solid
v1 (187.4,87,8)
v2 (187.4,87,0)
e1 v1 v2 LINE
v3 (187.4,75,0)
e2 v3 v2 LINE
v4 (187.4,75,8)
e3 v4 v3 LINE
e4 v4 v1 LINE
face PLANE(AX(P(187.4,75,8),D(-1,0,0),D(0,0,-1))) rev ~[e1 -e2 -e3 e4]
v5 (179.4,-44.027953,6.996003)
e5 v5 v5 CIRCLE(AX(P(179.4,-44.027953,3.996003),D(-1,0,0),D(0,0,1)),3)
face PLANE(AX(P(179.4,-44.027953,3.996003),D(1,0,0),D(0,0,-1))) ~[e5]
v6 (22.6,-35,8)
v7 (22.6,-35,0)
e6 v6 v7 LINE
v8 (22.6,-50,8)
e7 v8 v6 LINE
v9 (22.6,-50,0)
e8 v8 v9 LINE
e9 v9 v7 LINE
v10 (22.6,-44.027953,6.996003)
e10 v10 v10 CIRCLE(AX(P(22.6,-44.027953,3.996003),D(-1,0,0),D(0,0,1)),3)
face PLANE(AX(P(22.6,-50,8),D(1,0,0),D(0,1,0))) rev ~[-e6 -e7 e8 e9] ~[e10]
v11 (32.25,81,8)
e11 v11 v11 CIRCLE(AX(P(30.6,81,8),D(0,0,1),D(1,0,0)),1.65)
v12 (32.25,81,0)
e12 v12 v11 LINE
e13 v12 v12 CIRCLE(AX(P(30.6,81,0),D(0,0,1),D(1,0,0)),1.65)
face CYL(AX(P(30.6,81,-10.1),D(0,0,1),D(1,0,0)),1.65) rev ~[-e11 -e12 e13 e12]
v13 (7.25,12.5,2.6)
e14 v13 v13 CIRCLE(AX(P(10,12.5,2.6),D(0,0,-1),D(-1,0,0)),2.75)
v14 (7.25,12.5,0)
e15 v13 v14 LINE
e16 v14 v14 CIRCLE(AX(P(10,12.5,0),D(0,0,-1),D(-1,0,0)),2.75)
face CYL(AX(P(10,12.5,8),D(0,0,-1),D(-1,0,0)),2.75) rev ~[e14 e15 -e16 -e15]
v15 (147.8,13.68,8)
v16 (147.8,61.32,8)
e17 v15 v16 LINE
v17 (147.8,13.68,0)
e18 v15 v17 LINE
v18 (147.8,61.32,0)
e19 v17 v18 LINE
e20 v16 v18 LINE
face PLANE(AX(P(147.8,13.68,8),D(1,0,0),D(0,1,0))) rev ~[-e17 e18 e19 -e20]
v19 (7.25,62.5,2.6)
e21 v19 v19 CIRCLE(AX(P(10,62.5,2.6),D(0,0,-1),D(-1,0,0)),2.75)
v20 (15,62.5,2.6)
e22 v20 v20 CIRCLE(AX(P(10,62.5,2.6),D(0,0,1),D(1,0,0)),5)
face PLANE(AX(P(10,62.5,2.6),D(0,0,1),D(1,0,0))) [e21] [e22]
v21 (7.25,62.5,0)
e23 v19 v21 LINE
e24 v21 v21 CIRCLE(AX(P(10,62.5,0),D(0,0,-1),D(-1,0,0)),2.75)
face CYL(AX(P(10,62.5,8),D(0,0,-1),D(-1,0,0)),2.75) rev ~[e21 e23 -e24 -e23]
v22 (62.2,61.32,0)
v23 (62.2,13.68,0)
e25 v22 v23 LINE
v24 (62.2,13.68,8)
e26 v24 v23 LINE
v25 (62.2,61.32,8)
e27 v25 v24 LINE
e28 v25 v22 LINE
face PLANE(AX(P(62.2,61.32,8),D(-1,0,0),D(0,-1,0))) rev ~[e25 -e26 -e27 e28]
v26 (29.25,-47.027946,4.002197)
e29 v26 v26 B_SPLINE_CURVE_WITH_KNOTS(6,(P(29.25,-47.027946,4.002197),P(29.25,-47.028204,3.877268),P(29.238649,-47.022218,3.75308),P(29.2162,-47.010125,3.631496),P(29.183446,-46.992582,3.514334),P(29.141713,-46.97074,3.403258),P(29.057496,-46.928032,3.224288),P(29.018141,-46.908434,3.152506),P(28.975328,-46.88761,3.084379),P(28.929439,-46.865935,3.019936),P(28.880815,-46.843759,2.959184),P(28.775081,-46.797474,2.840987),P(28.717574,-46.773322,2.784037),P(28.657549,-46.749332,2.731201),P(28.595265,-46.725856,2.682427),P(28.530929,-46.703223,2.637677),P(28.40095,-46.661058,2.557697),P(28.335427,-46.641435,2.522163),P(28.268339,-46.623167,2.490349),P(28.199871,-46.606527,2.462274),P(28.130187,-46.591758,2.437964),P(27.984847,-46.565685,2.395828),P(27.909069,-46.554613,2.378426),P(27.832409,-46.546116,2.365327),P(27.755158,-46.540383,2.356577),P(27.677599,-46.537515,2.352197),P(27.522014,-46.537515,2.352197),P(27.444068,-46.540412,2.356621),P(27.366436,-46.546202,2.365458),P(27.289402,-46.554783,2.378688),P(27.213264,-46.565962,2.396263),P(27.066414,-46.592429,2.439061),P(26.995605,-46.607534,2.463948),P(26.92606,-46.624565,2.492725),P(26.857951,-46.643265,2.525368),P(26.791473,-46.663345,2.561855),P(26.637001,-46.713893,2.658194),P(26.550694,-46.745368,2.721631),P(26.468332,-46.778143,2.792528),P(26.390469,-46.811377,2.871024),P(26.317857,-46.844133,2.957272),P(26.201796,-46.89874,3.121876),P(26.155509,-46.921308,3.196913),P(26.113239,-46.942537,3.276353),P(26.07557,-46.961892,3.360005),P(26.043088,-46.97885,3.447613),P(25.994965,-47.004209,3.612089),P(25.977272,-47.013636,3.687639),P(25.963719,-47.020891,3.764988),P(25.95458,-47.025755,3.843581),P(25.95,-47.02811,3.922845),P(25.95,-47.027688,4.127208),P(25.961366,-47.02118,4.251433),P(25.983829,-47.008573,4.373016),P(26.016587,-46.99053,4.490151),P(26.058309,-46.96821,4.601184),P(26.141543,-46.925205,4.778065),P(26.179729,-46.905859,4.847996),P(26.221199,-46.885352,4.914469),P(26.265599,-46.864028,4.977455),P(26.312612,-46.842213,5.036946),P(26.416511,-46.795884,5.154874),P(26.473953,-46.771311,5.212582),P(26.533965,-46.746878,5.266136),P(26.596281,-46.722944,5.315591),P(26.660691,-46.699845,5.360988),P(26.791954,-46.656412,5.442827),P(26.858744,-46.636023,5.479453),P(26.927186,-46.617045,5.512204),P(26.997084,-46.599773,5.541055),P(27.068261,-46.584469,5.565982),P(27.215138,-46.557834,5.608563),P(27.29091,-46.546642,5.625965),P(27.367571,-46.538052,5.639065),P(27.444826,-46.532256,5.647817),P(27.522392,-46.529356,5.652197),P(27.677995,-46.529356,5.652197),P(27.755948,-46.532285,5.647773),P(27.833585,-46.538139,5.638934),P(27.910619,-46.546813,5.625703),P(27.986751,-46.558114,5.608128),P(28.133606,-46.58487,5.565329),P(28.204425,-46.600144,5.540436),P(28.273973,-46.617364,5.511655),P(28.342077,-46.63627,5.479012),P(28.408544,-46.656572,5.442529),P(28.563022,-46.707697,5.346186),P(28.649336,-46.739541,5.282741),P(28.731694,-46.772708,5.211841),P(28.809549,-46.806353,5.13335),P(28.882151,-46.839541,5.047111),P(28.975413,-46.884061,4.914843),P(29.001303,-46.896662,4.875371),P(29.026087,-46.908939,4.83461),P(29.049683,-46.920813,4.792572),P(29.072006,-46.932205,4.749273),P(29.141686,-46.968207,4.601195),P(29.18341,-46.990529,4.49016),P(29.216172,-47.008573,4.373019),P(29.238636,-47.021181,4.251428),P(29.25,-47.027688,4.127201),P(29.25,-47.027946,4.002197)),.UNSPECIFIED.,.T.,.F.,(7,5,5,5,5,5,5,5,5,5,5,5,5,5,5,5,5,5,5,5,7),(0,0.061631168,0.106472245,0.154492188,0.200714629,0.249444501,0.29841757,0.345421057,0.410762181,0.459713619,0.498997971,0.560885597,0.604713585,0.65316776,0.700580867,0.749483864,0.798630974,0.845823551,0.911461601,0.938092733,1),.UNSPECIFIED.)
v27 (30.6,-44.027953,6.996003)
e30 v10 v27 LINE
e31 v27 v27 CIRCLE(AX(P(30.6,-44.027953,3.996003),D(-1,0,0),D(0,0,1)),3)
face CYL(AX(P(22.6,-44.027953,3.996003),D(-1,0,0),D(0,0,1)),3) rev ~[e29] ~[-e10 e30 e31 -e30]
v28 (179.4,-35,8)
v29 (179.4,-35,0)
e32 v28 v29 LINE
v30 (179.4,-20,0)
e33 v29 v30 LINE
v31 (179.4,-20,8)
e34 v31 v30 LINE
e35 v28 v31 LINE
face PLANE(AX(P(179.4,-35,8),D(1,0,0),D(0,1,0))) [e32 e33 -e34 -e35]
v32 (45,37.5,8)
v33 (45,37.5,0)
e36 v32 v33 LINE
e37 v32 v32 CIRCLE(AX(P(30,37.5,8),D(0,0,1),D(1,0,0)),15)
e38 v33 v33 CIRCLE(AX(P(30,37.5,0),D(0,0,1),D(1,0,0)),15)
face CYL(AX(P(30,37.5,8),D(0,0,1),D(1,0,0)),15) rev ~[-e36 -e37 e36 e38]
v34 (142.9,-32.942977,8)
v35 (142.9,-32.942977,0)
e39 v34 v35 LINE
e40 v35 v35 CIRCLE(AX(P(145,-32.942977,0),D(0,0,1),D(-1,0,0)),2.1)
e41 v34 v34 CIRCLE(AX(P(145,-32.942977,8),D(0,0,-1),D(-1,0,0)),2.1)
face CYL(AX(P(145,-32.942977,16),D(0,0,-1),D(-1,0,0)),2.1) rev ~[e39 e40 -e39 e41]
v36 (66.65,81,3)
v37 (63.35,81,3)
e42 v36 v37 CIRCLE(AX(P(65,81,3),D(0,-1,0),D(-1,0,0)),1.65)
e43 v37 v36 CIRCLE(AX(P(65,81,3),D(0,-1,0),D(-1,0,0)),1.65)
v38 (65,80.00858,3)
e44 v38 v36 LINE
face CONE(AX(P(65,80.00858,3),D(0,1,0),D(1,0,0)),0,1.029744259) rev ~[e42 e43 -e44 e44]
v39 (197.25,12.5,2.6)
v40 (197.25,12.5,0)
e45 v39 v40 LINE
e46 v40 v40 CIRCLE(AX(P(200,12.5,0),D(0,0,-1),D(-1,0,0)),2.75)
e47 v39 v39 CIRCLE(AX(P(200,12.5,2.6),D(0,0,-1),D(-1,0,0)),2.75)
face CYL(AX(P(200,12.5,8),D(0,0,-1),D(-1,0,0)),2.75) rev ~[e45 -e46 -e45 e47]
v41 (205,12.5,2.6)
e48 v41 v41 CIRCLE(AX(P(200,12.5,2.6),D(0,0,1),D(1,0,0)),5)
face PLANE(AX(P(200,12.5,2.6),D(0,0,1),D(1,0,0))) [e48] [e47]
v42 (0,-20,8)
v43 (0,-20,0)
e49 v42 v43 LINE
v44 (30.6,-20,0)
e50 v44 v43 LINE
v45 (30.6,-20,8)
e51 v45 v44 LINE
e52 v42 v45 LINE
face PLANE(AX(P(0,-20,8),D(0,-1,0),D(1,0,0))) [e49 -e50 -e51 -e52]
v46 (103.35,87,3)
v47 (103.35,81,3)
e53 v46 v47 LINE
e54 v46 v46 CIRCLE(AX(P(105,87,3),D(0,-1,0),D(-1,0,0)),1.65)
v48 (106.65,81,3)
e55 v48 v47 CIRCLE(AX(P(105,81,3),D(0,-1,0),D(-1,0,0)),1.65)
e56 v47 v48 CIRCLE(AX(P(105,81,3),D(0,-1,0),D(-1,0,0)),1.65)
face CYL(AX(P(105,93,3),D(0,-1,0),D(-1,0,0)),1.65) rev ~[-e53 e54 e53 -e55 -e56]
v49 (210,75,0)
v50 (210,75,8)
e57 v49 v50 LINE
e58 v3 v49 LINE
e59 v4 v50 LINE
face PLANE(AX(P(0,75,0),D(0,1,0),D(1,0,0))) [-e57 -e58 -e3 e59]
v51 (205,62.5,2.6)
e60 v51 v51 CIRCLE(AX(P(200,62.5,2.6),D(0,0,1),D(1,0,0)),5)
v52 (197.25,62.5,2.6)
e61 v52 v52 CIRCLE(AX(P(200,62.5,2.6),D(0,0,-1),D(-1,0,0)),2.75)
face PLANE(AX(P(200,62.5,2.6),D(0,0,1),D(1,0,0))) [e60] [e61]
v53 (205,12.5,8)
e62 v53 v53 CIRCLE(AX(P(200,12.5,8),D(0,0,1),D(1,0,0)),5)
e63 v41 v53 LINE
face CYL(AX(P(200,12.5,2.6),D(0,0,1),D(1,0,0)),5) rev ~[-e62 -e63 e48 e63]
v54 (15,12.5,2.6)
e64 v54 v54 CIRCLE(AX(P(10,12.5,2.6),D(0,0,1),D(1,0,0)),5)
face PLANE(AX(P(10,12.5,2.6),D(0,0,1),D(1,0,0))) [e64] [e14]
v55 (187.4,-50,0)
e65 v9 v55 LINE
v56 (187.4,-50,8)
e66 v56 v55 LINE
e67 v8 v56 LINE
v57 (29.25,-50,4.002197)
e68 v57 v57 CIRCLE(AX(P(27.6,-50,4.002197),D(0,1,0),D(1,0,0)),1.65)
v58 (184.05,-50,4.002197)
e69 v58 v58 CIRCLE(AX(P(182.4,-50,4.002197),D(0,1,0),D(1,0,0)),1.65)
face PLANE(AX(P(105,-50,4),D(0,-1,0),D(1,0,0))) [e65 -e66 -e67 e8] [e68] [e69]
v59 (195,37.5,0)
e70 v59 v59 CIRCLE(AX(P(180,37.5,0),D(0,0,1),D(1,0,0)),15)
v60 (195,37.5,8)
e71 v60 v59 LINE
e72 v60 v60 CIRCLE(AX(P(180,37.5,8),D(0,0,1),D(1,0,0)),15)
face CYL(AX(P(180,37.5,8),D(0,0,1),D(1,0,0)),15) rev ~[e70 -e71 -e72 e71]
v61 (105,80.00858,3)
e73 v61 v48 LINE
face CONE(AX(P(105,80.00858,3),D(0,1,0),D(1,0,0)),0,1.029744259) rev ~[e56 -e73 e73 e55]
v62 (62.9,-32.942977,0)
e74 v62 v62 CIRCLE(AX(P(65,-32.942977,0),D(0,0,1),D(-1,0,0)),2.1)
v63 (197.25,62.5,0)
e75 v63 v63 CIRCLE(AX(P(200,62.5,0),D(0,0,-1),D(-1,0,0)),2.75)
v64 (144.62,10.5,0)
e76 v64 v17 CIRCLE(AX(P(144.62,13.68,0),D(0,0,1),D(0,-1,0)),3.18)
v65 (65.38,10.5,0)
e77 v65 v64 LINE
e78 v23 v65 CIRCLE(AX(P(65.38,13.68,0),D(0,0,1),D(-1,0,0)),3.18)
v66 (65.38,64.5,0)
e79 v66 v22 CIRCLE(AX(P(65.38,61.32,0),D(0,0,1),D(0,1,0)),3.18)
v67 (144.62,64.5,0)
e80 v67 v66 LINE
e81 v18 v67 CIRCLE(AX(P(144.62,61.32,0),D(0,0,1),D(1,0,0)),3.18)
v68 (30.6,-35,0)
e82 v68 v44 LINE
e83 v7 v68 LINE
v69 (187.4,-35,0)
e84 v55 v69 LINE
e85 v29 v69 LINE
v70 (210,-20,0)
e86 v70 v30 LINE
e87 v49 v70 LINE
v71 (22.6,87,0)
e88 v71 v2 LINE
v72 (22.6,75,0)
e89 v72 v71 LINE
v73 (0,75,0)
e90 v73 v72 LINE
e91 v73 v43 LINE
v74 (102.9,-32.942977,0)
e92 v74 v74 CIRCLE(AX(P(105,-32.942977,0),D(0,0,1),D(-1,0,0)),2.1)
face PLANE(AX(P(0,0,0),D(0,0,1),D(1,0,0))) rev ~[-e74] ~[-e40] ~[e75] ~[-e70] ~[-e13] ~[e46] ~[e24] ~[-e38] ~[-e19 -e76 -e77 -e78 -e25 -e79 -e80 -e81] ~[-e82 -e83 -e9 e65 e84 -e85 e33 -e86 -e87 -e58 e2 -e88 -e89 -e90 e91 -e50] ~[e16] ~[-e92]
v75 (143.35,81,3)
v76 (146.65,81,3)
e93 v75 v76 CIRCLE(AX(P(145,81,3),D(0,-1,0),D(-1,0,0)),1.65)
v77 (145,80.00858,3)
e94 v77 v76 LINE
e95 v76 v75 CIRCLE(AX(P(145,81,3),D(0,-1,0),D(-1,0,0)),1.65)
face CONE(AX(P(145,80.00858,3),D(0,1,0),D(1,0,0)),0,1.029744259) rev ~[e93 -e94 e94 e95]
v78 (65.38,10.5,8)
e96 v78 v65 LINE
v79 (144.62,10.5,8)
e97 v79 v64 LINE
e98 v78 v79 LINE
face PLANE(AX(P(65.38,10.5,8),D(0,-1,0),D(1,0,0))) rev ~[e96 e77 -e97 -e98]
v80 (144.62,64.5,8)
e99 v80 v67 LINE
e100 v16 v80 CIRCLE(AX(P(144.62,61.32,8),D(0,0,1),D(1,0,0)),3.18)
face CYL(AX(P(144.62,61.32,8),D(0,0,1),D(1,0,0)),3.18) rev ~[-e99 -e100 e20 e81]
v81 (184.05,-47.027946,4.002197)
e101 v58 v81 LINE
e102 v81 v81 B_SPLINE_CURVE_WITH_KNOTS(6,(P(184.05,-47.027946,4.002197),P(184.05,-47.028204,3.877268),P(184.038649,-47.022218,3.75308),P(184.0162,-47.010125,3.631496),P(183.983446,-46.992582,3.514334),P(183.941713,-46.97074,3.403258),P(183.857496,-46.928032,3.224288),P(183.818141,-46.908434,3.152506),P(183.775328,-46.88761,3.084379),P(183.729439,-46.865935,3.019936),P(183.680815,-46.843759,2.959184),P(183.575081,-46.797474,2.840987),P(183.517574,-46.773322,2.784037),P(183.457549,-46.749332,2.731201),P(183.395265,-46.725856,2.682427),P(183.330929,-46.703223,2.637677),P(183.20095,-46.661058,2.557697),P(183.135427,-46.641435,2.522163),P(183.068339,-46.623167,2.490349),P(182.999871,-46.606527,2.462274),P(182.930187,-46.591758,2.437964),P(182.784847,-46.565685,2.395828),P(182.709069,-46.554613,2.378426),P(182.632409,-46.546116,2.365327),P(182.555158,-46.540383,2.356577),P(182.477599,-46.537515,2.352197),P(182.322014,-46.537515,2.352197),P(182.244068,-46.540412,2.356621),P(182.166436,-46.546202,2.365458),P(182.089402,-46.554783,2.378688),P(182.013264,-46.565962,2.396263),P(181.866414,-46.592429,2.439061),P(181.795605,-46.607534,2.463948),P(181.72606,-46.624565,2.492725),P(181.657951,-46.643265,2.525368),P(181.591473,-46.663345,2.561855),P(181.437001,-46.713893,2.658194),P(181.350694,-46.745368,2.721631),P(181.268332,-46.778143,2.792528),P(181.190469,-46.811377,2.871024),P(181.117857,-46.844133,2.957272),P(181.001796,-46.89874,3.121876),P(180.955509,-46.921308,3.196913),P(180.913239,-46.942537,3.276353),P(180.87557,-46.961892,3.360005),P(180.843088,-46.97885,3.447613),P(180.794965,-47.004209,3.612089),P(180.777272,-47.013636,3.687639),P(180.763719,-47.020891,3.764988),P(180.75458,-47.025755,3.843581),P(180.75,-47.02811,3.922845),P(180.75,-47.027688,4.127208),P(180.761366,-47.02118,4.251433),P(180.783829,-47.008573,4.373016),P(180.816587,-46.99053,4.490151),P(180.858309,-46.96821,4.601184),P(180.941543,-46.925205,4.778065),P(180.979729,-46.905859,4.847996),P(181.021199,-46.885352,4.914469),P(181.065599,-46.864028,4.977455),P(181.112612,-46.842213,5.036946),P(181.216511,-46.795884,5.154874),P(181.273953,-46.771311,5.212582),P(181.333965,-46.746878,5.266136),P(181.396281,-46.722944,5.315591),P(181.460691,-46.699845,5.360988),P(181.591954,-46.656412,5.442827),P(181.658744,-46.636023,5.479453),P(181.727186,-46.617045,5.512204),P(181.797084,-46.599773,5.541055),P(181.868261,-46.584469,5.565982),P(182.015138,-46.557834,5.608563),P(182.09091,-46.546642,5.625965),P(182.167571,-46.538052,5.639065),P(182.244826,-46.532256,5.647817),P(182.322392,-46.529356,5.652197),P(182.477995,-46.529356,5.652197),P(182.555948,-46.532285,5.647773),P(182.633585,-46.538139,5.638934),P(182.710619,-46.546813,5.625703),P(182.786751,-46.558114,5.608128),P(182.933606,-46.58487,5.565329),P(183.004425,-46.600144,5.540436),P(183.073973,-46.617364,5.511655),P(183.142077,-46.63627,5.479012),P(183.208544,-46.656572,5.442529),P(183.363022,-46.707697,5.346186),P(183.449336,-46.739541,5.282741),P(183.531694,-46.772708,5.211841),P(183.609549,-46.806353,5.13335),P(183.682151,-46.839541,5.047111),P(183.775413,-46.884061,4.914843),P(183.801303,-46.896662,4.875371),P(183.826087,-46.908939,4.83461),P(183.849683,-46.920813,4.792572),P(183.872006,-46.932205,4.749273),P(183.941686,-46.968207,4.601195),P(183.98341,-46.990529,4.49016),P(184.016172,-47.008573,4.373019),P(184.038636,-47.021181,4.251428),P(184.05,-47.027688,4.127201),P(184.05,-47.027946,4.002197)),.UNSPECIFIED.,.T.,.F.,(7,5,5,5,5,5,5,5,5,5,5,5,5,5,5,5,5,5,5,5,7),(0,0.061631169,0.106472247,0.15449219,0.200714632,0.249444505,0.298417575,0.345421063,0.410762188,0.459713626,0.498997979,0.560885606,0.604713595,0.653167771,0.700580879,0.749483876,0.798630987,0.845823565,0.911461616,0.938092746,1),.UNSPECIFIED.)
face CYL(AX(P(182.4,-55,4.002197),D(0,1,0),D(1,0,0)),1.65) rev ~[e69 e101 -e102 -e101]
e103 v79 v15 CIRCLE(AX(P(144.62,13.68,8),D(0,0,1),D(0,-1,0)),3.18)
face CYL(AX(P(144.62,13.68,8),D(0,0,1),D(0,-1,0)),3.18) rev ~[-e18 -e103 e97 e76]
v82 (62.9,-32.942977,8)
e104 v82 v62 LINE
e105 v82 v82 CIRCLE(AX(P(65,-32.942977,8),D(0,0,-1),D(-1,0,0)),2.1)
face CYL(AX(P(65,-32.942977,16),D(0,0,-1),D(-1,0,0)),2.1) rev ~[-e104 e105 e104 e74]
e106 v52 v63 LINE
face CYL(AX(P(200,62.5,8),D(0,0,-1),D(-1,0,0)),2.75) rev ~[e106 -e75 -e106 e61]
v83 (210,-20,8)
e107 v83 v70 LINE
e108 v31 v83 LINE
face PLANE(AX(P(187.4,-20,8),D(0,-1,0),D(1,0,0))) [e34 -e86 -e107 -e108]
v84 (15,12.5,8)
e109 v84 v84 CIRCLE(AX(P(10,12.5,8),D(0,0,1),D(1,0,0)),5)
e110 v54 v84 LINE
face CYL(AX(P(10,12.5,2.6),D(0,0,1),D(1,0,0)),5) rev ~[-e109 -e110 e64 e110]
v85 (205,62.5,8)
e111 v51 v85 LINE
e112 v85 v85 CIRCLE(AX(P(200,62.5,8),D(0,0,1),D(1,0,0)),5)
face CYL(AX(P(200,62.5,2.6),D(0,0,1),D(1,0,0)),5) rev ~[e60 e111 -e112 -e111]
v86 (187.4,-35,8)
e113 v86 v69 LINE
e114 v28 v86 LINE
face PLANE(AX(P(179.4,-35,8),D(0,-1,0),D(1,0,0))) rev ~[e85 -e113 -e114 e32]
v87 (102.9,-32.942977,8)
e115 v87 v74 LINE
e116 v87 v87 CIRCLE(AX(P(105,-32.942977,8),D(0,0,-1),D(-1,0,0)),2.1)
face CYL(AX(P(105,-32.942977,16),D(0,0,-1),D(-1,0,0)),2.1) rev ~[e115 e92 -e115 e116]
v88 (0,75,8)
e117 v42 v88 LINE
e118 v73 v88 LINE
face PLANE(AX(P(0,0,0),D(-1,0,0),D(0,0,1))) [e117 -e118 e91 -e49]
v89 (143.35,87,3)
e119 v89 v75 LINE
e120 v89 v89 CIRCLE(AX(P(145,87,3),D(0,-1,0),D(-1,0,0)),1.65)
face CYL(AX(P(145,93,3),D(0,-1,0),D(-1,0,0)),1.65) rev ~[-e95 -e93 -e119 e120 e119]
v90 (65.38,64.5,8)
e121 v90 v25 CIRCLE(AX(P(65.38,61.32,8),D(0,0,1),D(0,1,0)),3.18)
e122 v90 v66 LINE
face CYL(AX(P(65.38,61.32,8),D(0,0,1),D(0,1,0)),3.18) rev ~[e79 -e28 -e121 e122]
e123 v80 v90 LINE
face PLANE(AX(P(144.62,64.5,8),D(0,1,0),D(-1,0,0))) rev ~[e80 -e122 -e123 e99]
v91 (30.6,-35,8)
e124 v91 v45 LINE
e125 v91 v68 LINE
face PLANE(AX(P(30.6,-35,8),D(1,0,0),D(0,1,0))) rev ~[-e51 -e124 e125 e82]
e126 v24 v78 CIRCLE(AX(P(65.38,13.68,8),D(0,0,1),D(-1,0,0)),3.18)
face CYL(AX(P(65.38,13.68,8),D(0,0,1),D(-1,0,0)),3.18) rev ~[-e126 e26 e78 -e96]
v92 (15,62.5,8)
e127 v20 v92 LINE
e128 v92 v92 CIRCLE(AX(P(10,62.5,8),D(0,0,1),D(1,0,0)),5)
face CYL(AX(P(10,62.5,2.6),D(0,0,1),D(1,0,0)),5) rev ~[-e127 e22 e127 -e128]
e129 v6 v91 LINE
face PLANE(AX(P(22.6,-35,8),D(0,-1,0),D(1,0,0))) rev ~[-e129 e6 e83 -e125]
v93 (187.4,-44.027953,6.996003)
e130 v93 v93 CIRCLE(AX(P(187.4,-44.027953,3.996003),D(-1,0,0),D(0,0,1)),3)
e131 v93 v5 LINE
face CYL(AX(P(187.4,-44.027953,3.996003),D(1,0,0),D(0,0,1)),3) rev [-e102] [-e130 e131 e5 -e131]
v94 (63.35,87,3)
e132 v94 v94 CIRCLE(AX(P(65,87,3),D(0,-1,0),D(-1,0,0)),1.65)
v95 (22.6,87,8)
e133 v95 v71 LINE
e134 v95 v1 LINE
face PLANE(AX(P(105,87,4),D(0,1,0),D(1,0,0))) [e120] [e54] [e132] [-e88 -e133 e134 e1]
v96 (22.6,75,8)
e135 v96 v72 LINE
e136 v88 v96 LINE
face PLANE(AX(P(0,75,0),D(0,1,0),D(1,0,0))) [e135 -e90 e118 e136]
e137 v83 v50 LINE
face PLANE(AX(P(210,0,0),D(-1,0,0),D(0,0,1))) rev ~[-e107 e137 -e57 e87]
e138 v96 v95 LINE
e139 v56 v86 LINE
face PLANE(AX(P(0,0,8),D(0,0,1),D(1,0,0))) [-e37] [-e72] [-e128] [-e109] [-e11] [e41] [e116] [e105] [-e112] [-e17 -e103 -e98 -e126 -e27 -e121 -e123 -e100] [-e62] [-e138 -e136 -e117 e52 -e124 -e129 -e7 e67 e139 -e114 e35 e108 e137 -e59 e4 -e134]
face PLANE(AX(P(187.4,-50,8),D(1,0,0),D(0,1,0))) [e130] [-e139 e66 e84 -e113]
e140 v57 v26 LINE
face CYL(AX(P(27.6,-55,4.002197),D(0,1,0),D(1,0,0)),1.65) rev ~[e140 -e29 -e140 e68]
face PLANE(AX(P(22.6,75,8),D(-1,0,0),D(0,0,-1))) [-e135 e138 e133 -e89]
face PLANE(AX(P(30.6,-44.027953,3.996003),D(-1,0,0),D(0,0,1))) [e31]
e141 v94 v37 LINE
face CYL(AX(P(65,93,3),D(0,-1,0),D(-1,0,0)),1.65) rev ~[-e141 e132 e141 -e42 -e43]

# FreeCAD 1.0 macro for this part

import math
import FreeCAD as App
import Part
import Sketcher


def add_polygon(sketch, points):
    """Adds a closed chain of lines whose ends are joined by coincident constraints."""
    first, n = sketch.GeometryCount, len(points)
    for a, b in zip(points, points[1:] + points[:1]):
        sketch.addGeometry(Part.LineSegment(App.Vector(*a, 0), App.Vector(*b, 0)), False)
    for i in range(n):
        sketch.addConstraint(Sketcher.Constraint("Coincident", first + i, 2, first + (i + 1) % n, 1))

doc = App.newDocument("Part")
params = doc.addObject("Spreadsheet::Sheet", "Params")
for row, (alias, value) in enumerate([
    ("sketch1_width", "210 mm"),
    ("sketch1_height", "75 mm"),
    ("pad1_length", "8 mm"),
    ("sketch2_radius", "3.18 mm"),
    ("sketch2_width", "79.24 mm"),
    ("sketch3_diameter", "5.5 mm"),
    ("hole_diameter", "5.5 mm"),
    ("hole_depth", "10.1 mm"),
    ("hole_cbore_diameter", "10 mm"),
    ("hole_cbore_depth", "5.4 mm"),
    ("sketch4_diameter", "30 mm"),
    ("pocket2_length", "13 mm"),
    ("sketch5_width", "210 mm"),
    ("sketch5_height", "8 mm"),
    ("pad2_length", "50 mm"),
    ("sketch6_height", "30 mm"),
    ("sketch6_width", "22.6 mm"),
    ("pocket3_length", "20 mm"),
    ("sketch7_diameter", "6 mm"),
    ("pocket4_length", "8 mm"),
    ("sketch8_height", "8 mm"),
    ("sketch8_width", "164.8 mm"),
    ("pad3_length", "12 mm"),
    ("sketch9_width", "8 mm"),
    ("sketch9_height", "15 mm"),
    ("sketch10_diameter", "3.3 mm"),
    ("hole2_diameter", "3.3 mm"),
    ("hole2_depth", "5 mm"),
    ("sketch11_diameter", "3.3 mm"),
    ("hole3_diameter", "3.3 mm"),
    ("hole3_depth", "10.1 mm"),
    ("sketch12_diameter", "4.2 mm"),
    ("hole4_diameter", "4.2 mm"),
    ("hole4_depth", "8 mm"),
    ("sketch13_diameter", "3.3 mm"),
    ("hole5_diameter", "3.3 mm"),
    ("hole5_depth", "6 mm"),
], start=1):
    params.set(f"A{row}", alias)
    params.set(f"B{row}", "=" + value)
    params.setAlias(f"B{row}", alias)

body = doc.addObject("PartDesign::Body", "Body")

# Sketch on XY plane
sketch1 = body.newObject("Sketcher::SketchObject", "Sketch")
sketch1.AttachmentSupport = (doc.getObject("XY_Plane"), [""])
sketch1.MapMode = "FlatFace"
add_polygon(sketch1, [(0, 75), (0, 0), (210, 0), (210, 75)])  # lines 0-3
sketch1.addConstraint(Sketcher.Constraint("Vertical", 0))
sketch1.addConstraint(Sketcher.Constraint("Horizontal", 1))
sketch1.addConstraint(Sketcher.Constraint("Vertical", 2))
sketch1.addConstraint(Sketcher.Constraint("Horizontal", 3))
sketch1.addConstraint(Sketcher.Constraint("Coincident", 0, 2, -1, 1))
sketch1.addConstraint(Sketcher.Constraint("DistanceX", 1, 1, 1, 2, 210.0))
sketch1.addConstraint(Sketcher.Constraint("DistanceY", 0, 2, 0, 1, 75.0))
sketch1.setExpression("Constraints[9]", "Params.sketch1_width")
sketch1.setExpression("Constraints[10]", "Params.sketch1_height")
pad1 = body.newObject("PartDesign::Pad", "Pad")
pad1.Profile = sketch1
pad1.setExpression("Length", "Params.pad1_length")

# Sketch on XY plane
sketch2 = body.newObject("Sketcher::SketchObject", "Sketch001")
sketch2.AttachmentSupport = (doc.getObject("XY_Plane"), [""])
sketch2.MapMode = "FlatFace"
sketch2.AttachmentOffset = App.Placement(App.Vector(0, 0, 8), App.Rotation())
sketch2.addGeometry(Part.LineSegment(App.Vector(144.6, 64.5, 0), App.Vector(65.4, 64.5, 0)), False)
sketch2.addGeometry(Part.ArcOfCircle(Part.Circle(App.Vector(65.4, 61.3, 0), App.Vector(0, 0, 1), 3.2), math.radians(90), math.radians(180)), False)
sketch2.addGeometry(Part.LineSegment(App.Vector(62.2, 61.3, 0), App.Vector(62.2, 13.7, 0)), False)
sketch2.addGeometry(Part.ArcOfCircle(Part.Circle(App.Vector(65.4, 13.7, 0), App.Vector(0, 0, 1), 3.2), math.radians(-180), math.radians(-90)), False)
sketch2.addGeometry(Part.LineSegment(App.Vector(65.4, 10.5, 0), App.Vector(144.6, 10.5, 0)), False)
sketch2.addGeometry(Part.ArcOfCircle(Part.Circle(App.Vector(144.6, 13.7, 0), App.Vector(0, 0, 1), 3.2), math.radians(-90), math.radians(0)), False)
sketch2.addGeometry(Part.LineSegment(App.Vector(147.8, 13.7, 0), App.Vector(147.8, 61.3, 0)), False)
sketch2.addGeometry(Part.ArcOfCircle(Part.Circle(App.Vector(144.6, 61.3, 0), App.Vector(0, 0, 1), 3.2), math.radians(0), math.radians(90)), False)
sketch2.addConstraint(Sketcher.Constraint("Tangent", 0, 2, 1, 1))
sketch2.addConstraint(Sketcher.Constraint("Tangent", 1, 2, 2, 1))
sketch2.addConstraint(Sketcher.Constraint("Tangent", 2, 2, 3, 1))
sketch2.addConstraint(Sketcher.Constraint("Tangent", 3, 2, 4, 1))
sketch2.addConstraint(Sketcher.Constraint("Tangent", 4, 2, 5, 1))
sketch2.addConstraint(Sketcher.Constraint("Tangent", 5, 2, 6, 1))
sketch2.addConstraint(Sketcher.Constraint("Tangent", 6, 2, 7, 1))
sketch2.addConstraint(Sketcher.Constraint("Tangent", 7, 2, 0, 1))
sketch2.addConstraint(Sketcher.Constraint("Horizontal", 0))
sketch2.addConstraint(Sketcher.Constraint("Vertical", 2))
sketch2.addConstraint(Sketcher.Constraint("Horizontal", 4))
sketch2.addConstraint(Sketcher.Constraint("Vertical", 6))
sketch2.addConstraint(Sketcher.Constraint("Equal", 1, 3))
sketch2.addConstraint(Sketcher.Constraint("Equal", 3, 5))
sketch2.addConstraint(Sketcher.Constraint("Equal", 5, 7))
sketch2.addConstraint(Sketcher.Constraint("Radius", 1, 3.18))
sketch2.addConstraint(Sketcher.Constraint("DistanceY", 3, 2, 0, 2, 54.0))
sketch2.addConstraint(Sketcher.Constraint("DistanceX", 0, 2, 0, 1, 79.24))
sketch2.addConstraint(Sketcher.Constraint("DistanceY", -1, 1, 0, 2, 64.5))
sketch2.addConstraint(Sketcher.Constraint("DistanceX", -1, 1, 1, 2, 62.2))
sketch2.setExpression("Constraints[15]", "Params.sketch2_radius")
sketch2.setExpression("Constraints[17]", "Params.sketch2_width")
pocket1 = body.newObject("PartDesign::Pocket", "Pocket")
pocket1.Profile = sketch2
pocket1.Type = "ThroughAll"

# Sketch on XY plane
sketch3 = body.newObject("Sketcher::SketchObject", "Sketch002")
sketch3.AttachmentSupport = (doc.getObject("XY_Plane"), [""])
sketch3.MapMode = "FlatFace"
sketch3.AttachmentOffset = App.Placement(App.Vector(0, 0, 8), App.Rotation())
sketch3.addGeometry(Part.Circle(App.Vector(10, 62.5, 0), App.Vector(0, 0, 1), 2.8), False)
sketch3.addGeometry(Part.Circle(App.Vector(10, 12.5, 0), App.Vector(0, 0, 1), 2.8), False)
sketch3.addGeometry(Part.Circle(App.Vector(200, 62.5, 0), App.Vector(0, 0, 1), 2.8), False)
sketch3.addGeometry(Part.Circle(App.Vector(200, 12.5, 0), App.Vector(0, 0, 1), 2.8), False)
sketch3.addConstraint(Sketcher.Constraint("Equal", 0, 1))
sketch3.addConstraint(Sketcher.Constraint("Equal", 1, 2))
sketch3.addConstraint(Sketcher.Constraint("Equal", 2, 3))
sketch3.addConstraint(Sketcher.Constraint("Horizontal", 0, 3, 2, 3))
sketch3.addConstraint(Sketcher.Constraint("Horizontal", 1, 3, 3, 3))
sketch3.addConstraint(Sketcher.Constraint("Vertical", 0, 3, 1, 3))
sketch3.addConstraint(Sketcher.Constraint("Vertical", 2, 3, 3, 3))
sketch3.addConstraint(Sketcher.Constraint("Diameter", 0, 5.5))
sketch3.addConstraint(Sketcher.Constraint("DistanceX", -1, 1, 0, 3, 10.0))
sketch3.addConstraint(Sketcher.Constraint("DistanceX", -1, 1, 2, 3, 200.0))
sketch3.addConstraint(Sketcher.Constraint("DistanceY", 1, 3, 0, 3, 50.0))
sketch3.addConstraint(Sketcher.Constraint("DistanceY", -1, 1, 0, 3, 62.5))
sketch3.setExpression("Constraints[7]", "Params.sketch3_diameter")
doc.recompute()
hole = body.newObject("PartDesign::Hole", "Hole")
hole.Profile = sketch3
hole.ThreadType = "None"
hole.setExpression("Diameter", "Params.hole_diameter")
hole.DepthType = "Dimension"
hole.setExpression("Depth", "Params.hole_depth")
hole.DrillPoint = "Angled"
hole.DrillPointAngle = 118
hole.HoleCutType = "Counterbore"
hole.setExpression("HoleCutDiameter", "Params.hole_cbore_diameter")
hole.setExpression("HoleCutDepth", "Params.hole_cbore_depth")

# Sketch on XY plane
sketch4 = body.newObject("Sketcher::SketchObject", "Sketch003")
sketch4.AttachmentSupport = (doc.getObject("XY_Plane"), [""])
sketch4.MapMode = "FlatFace"
sketch4.AttachmentOffset = App.Placement(App.Vector(0, 0, 8), App.Rotation())
sketch4.addGeometry(Part.Circle(App.Vector(30, 38, 0), App.Vector(0, 0, 1), 15), False)
sketch4.addGeometry(Part.Circle(App.Vector(180, 38, 0), App.Vector(0, 0, 1), 15), False)
sketch4.addConstraint(Sketcher.Constraint("Equal", 0, 1))
sketch4.addConstraint(Sketcher.Constraint("Horizontal", 0, 3, 1, 3))
sketch4.addConstraint(Sketcher.Constraint("Diameter", 0, 30.0))
sketch4.addConstraint(Sketcher.Constraint("DistanceX", -1, 1, 0, 3, 30.0))
sketch4.addConstraint(Sketcher.Constraint("DistanceX", -1, 1, 1, 3, 180.0))
sketch4.addConstraint(Sketcher.Constraint("DistanceY", -1, 1, 0, 3, 37.5))
sketch4.setExpression("Constraints[2]", "Params.sketch4_diameter")
pocket2 = body.newObject("PartDesign::Pocket", "Pocket001")
pocket2.Profile = sketch4
pocket2.setExpression("Length", "Params.pocket2_length")

# Sketch on XZ plane
sketch5 = body.newObject("Sketcher::SketchObject", "Sketch004")
sketch5.AttachmentSupport = (doc.getObject("XZ_Plane"), [""])
sketch5.MapMode = "FlatFace"
add_polygon(sketch5, [(0, 8), (0, 0), (210, 0), (210, 8)])  # lines 0-3
sketch5.addConstraint(Sketcher.Constraint("Vertical", 0))
sketch5.addConstraint(Sketcher.Constraint("Horizontal", 1))
sketch5.addConstraint(Sketcher.Constraint("Vertical", 2))
sketch5.addConstraint(Sketcher.Constraint("Horizontal", 3))
sketch5.addConstraint(Sketcher.Constraint("Coincident", 0, 2, -1, 1))
sketch5.addConstraint(Sketcher.Constraint("DistanceX", 1, 1, 1, 2, 210.0))
sketch5.addConstraint(Sketcher.Constraint("DistanceY", 0, 2, 0, 1, 8.0))
sketch5.setExpression("Constraints[9]", "Params.sketch5_width")
sketch5.setExpression("Constraints[10]", "Params.sketch5_height")
pad2 = body.newObject("PartDesign::Pad", "Pad001")
pad2.Profile = sketch5
pad2.setExpression("Length", "Params.pad2_length")

# Sketch on XY plane
sketch6 = body.newObject("Sketcher::SketchObject", "Sketch005")
sketch6.AttachmentSupport = (doc.getObject("XY_Plane"), [""])
sketch6.MapMode = "FlatFace"
sketch6.AttachmentOffset = App.Placement(App.Vector(0, 0, 8), App.Rotation())
add_polygon(sketch6, [(0, -20), (0, -50), (23, -50), (23, -20)])  # lines 0-3
add_polygon(sketch6, [(187, -20), (187, -50), (210, -50), (210, -20)])  # lines 4-7
sketch6.addConstraint(Sketcher.Constraint("Vertical", 0))
sketch6.addConstraint(Sketcher.Constraint("Horizontal", 1))
sketch6.addConstraint(Sketcher.Constraint("Vertical", 2))
sketch6.addConstraint(Sketcher.Constraint("Horizontal", 3))
sketch6.addConstraint(Sketcher.Constraint("Vertical", 4))
sketch6.addConstraint(Sketcher.Constraint("Horizontal", 5))
sketch6.addConstraint(Sketcher.Constraint("Vertical", 6))
sketch6.addConstraint(Sketcher.Constraint("Horizontal", 7))
sketch6.addConstraint(Sketcher.Constraint("PointOnObject", 0, 2, -2))
sketch6.addConstraint(Sketcher.Constraint("Horizontal", 1, 2, 4, 2))
sketch6.addConstraint(Sketcher.Constraint("Horizontal", 3, 2, 6, 2))
sketch6.addConstraint(Sketcher.Constraint("Equal", 3, 5))
sketch6.addConstraint(Sketcher.Constraint("DistanceY", 0, 2, 0, 1, 30.0))
sketch6.addConstraint(Sketcher.Constraint("DistanceX", 1, 1, 1, 2, 22.6))
sketch6.addConstraint(Sketcher.Constraint("DistanceY", 0, 2, -1, 1, 50.0))
sketch6.addConstraint(Sketcher.Constraint("DistanceX", -1, 1, 5, 2, 210.0))
sketch6.setExpression("Constraints[20]", "Params.sketch6_height")
sketch6.setExpression("Constraints[21]", "Params.sketch6_width")
pocket3 = body.newObject("PartDesign::Pocket", "Pocket002")
pocket3.Profile = sketch6
pocket3.setExpression("Length", "Params.pocket3_length")

# Sketch on YZ plane
sketch7 = body.newObject("Sketcher::SketchObject", "Sketch006")
sketch7.AttachmentSupport = (doc.getObject("YZ_Plane"), [""])
sketch7.MapMode = "FlatFace"
sketch7.AttachmentOffset = App.Placement(App.Vector(0, 0, 22.6), App.Rotation())
sketch7.addGeometry(Part.Circle(App.Vector(-44, 4, 0), App.Vector(0, 0, 1), 3), False)
sketch7.addConstraint(Sketcher.Constraint("Diameter", 0, 6.0))
sketch7.addConstraint(Sketcher.Constraint("DistanceX", 0, 3, -1, 1, 44.027953))
sketch7.addConstraint(Sketcher.Constraint("DistanceY", -1, 1, 0, 3, 3.996003))
sketch7.setExpression("Constraints[0]", "Params.sketch7_diameter")
pocket4 = body.newObject("PartDesign::Pocket", "Pocket003")
pocket4.Profile = sketch7
pocket4.setExpression("Length", "Params.pocket4_length")
pocket4.Reversed = True
doc.recompute()

datumplane = body.newObject("PartDesign::Plane", "DatumPlane")
datumplane.AttachmentSupport = (doc.getObject("YZ_Plane"), [""])
datumplane.MapMode = "FlatFace"
datumplane.AttachmentOffset = App.Placement(App.Vector(0, 0, 105), App.Rotation())
mirrored = body.newObject("PartDesign::Mirrored", "Mirrored")
mirrored.Originals = [pocket4]
mirrored.MirrorPlane = (datumplane, [""])
body.Tip = mirrored

# Sketch on XZ plane
sketch8 = body.newObject("Sketcher::SketchObject", "Sketch007")
sketch8.AttachmentSupport = (doc.getObject("XZ_Plane"), [""])
sketch8.MapMode = "FlatFace"
sketch8.AttachmentOffset = App.Placement(App.Vector(0, 0, -75), App.Rotation())
add_polygon(sketch8, [(23, 0), (23, 8), (187, 8), (187, 0)])  # lines 0-3
sketch8.addConstraint(Sketcher.Constraint("Vertical", 0))
sketch8.addConstraint(Sketcher.Constraint("Horizontal", 1))
sketch8.addConstraint(Sketcher.Constraint("Vertical", 2))
sketch8.addConstraint(Sketcher.Constraint("Horizontal", 3))
sketch8.addConstraint(Sketcher.Constraint("PointOnObject", 2, 2, -1))
sketch8.addConstraint(Sketcher.Constraint("DistanceY", 0, 1, 0, 2, 8.0))
sketch8.addConstraint(Sketcher.Constraint("DistanceX", 1, 1, 1, 2, 164.8))
sketch8.addConstraint(Sketcher.Constraint("DistanceX", -1, 1, 0, 2, 22.6))
sketch8.setExpression("Constraints[9]", "Params.sketch8_height")
sketch8.setExpression("Constraints[10]", "Params.sketch8_width")
pad3 = body.newObject("PartDesign::Pad", "Pad002")
pad3.Profile = sketch8
pad3.setExpression("Length", "Params.pad3_length")
pad3.Reversed = True

# Sketch on XY plane
sketch9 = body.newObject("Sketcher::SketchObject", "Sketch008")
sketch9.AttachmentSupport = (doc.getObject("XY_Plane"), [""])
sketch9.MapMode = "FlatFace"
sketch9.AttachmentOffset = App.Placement(App.Vector(0, 0, 8), App.Rotation())
add_polygon(sketch9, [(23, -20), (23, -35), (31, -35), (31, -20)])  # lines 0-3
add_polygon(sketch9, [(179, -20), (179, -35), (187, -35), (187, -20)])  # lines 4-7
sketch9.addConstraint(Sketcher.Constraint("Vertical", 0))
sketch9.addConstraint(Sketcher.Constraint("Horizontal", 1))
sketch9.addConstraint(Sketcher.Constraint("Vertical", 2))
sketch9.addConstraint(Sketcher.Constraint("Horizontal", 3))
sketch9.addConstraint(Sketcher.Constraint("Vertical", 4))
sketch9.addConstraint(Sketcher.Constraint("Horizontal", 5))
sketch9.addConstraint(Sketcher.Constraint("Vertical", 6))
sketch9.addConstraint(Sketcher.Constraint("Horizontal", 7))
sketch9.addConstraint(Sketcher.Constraint("Horizontal", 1, 2, 4, 2))
sketch9.addConstraint(Sketcher.Constraint("Horizontal", 3, 2, 6, 2))
sketch9.addConstraint(Sketcher.Constraint("Equal", 3, 5))
sketch9.addConstraint(Sketcher.Constraint("DistanceX", 1, 1, 1, 2, 8.0))
sketch9.addConstraint(Sketcher.Constraint("DistanceY", 0, 2, 0, 1, 15.0))
sketch9.addConstraint(Sketcher.Constraint("DistanceY", 0, 2, -1, 1, 35.0))
sketch9.addConstraint(Sketcher.Constraint("DistanceX", -1, 1, 0, 2, 22.6))
sketch9.addConstraint(Sketcher.Constraint("DistanceX", -1, 1, 4, 2, 179.4))
sketch9.setExpression("Constraints[19]", "Params.sketch9_width")
sketch9.setExpression("Constraints[20]", "Params.sketch9_height")
pocket5 = body.newObject("PartDesign::Pocket", "Pocket004")
pocket5.Profile = sketch9
pocket5.Type = "ThroughAll"

# Sketch on XZ plane
sketch10 = body.newObject("Sketcher::SketchObject", "Sketch009")
sketch10.AttachmentSupport = (doc.getObject("XZ_Plane"), [""])
sketch10.MapMode = "FlatFace"
sketch10.AttachmentOffset = App.Placement(App.Vector(0, 0, 50), App.Rotation())
sketch10.addGeometry(Part.Circle(App.Vector(27.6, 4, 0), App.Vector(0, 0, 1), 1.6), False)
sketch10.addGeometry(Part.Circle(App.Vector(182.4, 4, 0), App.Vector(0, 0, 1), 1.6), False)
sketch10.addConstraint(Sketcher.Constraint("Equal", 0, 1))
sketch10.addConstraint(Sketcher.Constraint("Horizontal", 0, 3, 1, 3))
sketch10.addConstraint(Sketcher.Constraint("Diameter", 0, 3.3))
sketch10.addConstraint(Sketcher.Constraint("DistanceX", -1, 1, 0, 3, 27.6))
sketch10.addConstraint(Sketcher.Constraint("DistanceX", -1, 1, 1, 3, 182.4))
sketch10.addConstraint(Sketcher.Constraint("DistanceY", -1, 1, 0, 3, 4.002197))
sketch10.setExpression("Constraints[2]", "Params.sketch10_diameter")
doc.recompute()
hole2 = body.newObject("PartDesign::Hole", "Hole001")
hole2.Profile = sketch10
hole2.ThreadType = "None"
hole2.setExpression("Diameter", "Params.hole2_diameter")
hole2.DepthType = "Dimension"
hole2.setExpression("Depth", "Params.hole2_depth")
hole2.DrillPoint = "Angled"
hole2.DrillPointAngle = 118

# Sketch on XY plane
sketch11 = body.newObject("Sketcher::SketchObject", "Sketch010")
sketch11.AttachmentSupport = (doc.getObject("XY_Plane"), [""])
sketch11.MapMode = "FlatFace"
sketch11.addGeometry(Part.Circle(App.Vector(30.6, 81, 0), App.Vector(0, 0, 1), 1.6), False)
sketch11.addConstraint(Sketcher.Constraint("Diameter", 0, 3.3))
sketch11.addConstraint(Sketcher.Constraint("DistanceY", -1, 1, 0, 3, 81.0))
sketch11.addConstraint(Sketcher.Constraint("DistanceX", -1, 1, 0, 3, 30.6))
sketch11.setExpression("Constraints[0]", "Params.sketch11_diameter")
doc.recompute()
hole3 = body.newObject("PartDesign::Hole", "Hole002")
hole3.Profile = sketch11
hole3.ThreadType = "None"
hole3.setExpression("Diameter", "Params.hole3_diameter")
hole3.DepthType = "Dimension"
hole3.setExpression("Depth", "Params.hole3_depth")
hole3.DrillPoint = "Angled"
hole3.DrillPointAngle = 118
hole3.Reversed = True

# Sketch on XY plane
sketch12 = body.newObject("Sketcher::SketchObject", "Sketch011")
sketch12.AttachmentSupport = (doc.getObject("XY_Plane"), [""])
sketch12.MapMode = "FlatFace"
sketch12.AttachmentOffset = App.Placement(App.Vector(0, 0, 8), App.Rotation())
sketch12.addGeometry(Part.Circle(App.Vector(65, -32.9, 0), App.Vector(0, 0, 1), 2.1), False)
sketch12.addGeometry(Part.Circle(App.Vector(105, -32.9, 0), App.Vector(0, 0, 1), 2.1), False)
sketch12.addGeometry(Part.Circle(App.Vector(145, -32.9, 0), App.Vector(0, 0, 1), 2.1), False)
sketch12.addConstraint(Sketcher.Constraint("Equal", 0, 1))
sketch12.addConstraint(Sketcher.Constraint("Equal", 1, 2))
sketch12.addConstraint(Sketcher.Constraint("Horizontal", 0, 3, 1, 3))
sketch12.addConstraint(Sketcher.Constraint("Horizontal", 1, 3, 2, 3))
sketch12.addConstraint(Sketcher.Constraint("Diameter", 0, 4.2))
sketch12.addConstraint(Sketcher.Constraint("DistanceX", -1, 1, 0, 3, 65.0))
sketch12.addConstraint(Sketcher.Constraint("DistanceX", -1, 1, 1, 3, 105.0))
sketch12.addConstraint(Sketcher.Constraint("DistanceX", -1, 1, 2, 3, 145.0))
sketch12.addConstraint(Sketcher.Constraint("DistanceY", 0, 3, -1, 1, 32.942977))
sketch12.setExpression("Constraints[4]", "Params.sketch12_diameter")
doc.recompute()
hole4 = body.newObject("PartDesign::Hole", "Hole003")
hole4.Profile = sketch12
hole4.ThreadType = "None"
hole4.setExpression("Diameter", "Params.hole4_diameter")
hole4.DepthType = "Dimension"
hole4.setExpression("Depth", "Params.hole4_depth")
hole4.DrillPoint = "Angled"
hole4.DrillPointAngle = 118

# Sketch on XZ plane
sketch13 = body.newObject("Sketcher::SketchObject", "Sketch012")
sketch13.AttachmentSupport = (doc.getObject("XZ_Plane"), [""])
sketch13.MapMode = "FlatFace"
sketch13.AttachmentOffset = App.Placement(App.Vector(0, 0, -87), App.Rotation())
sketch13.addGeometry(Part.Circle(App.Vector(145, 3, 0), App.Vector(0, 0, 1), 1.6), False)
sketch13.addGeometry(Part.Circle(App.Vector(105, 3, 0), App.Vector(0, 0, 1), 1.6), False)
sketch13.addGeometry(Part.Circle(App.Vector(65, 3, 0), App.Vector(0, 0, 1), 1.6), False)
sketch13.addConstraint(Sketcher.Constraint("Equal", 0, 1))
sketch13.addConstraint(Sketcher.Constraint("Equal", 1, 2))
sketch13.addConstraint(Sketcher.Constraint("Horizontal", 0, 3, 1, 3))
sketch13.addConstraint(Sketcher.Constraint("Horizontal", 1, 3, 2, 3))
sketch13.addConstraint(Sketcher.Constraint("Diameter", 0, 3.3))
sketch13.addConstraint(Sketcher.Constraint("DistanceX", -1, 1, 0, 3, 145.0))
sketch13.addConstraint(Sketcher.Constraint("DistanceY", -1, 1, 0, 3, 3.0))
sketch13.addConstraint(Sketcher.Constraint("DistanceX", -1, 1, 1, 3, 105.0))
sketch13.addConstraint(Sketcher.Constraint("DistanceX", -1, 1, 2, 3, 65.0))
sketch13.setExpression("Constraints[4]", "Params.sketch13_diameter")
doc.recompute()
hole5 = body.newObject("PartDesign::Hole", "Hole004")
hole5.Profile = sketch13
hole5.ThreadType = "None"
hole5.setExpression("Diameter", "Params.hole5_diameter")
hole5.DepthType = "Dimension"
hole5.setExpression("Depth", "Params.hole5_depth")
hole5.DrillPoint = "Angled"
hole5.DrillPointAngle = 118
hole5.Reversed = True

doc.recompute()
